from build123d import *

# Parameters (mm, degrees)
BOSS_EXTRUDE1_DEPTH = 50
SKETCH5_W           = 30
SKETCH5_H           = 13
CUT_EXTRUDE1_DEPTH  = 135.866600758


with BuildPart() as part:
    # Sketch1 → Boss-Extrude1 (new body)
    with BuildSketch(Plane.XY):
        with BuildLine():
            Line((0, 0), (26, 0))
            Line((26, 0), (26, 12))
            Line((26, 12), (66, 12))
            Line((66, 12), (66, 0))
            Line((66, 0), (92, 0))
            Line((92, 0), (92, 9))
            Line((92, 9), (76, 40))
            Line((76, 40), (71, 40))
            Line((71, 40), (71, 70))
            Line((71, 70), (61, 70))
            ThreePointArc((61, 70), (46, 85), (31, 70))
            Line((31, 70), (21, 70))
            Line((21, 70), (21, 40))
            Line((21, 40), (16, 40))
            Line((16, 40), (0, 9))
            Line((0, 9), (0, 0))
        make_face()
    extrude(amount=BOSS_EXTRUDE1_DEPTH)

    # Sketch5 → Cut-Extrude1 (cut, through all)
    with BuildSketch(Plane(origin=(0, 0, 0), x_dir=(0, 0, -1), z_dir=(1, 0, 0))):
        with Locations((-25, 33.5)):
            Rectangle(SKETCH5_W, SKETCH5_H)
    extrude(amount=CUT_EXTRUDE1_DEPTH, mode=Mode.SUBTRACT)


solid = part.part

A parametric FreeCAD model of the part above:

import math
import FreeCAD as App
import Part
import Sketcher
Q = App.Units.Quantity

doc = App.newDocument("Part")
body = doc.addObject("PartDesign::Body", "Body")

# Sketch on XY plane
sketch1 = doc.addObject("Sketcher::SketchObject", "Sketch")
body.addObject(sketch1)
sketch1.AttachmentSupport = (doc.XY_Plane, [""])
sketch1.MapMode = "FlatFace"
sketch1.addGeometry([
    Part.LineSegment(App.Vector(0, 0, 0), App.Vector(26, 0, 0)),  # 0
    Part.LineSegment(App.Vector(26, 0, 0), App.Vector(26, 12, 0)),  # 1
    Part.LineSegment(App.Vector(26, 12, 0), App.Vector(66, 12, 0)),  # 2
    Part.LineSegment(App.Vector(66, 12, 0), App.Vector(66, 0, 0)),  # 3
    Part.LineSegment(App.Vector(66, 0, 0), App.Vector(92, 0, 0)),  # 4
    Part.LineSegment(App.Vector(92, 0, 0), App.Vector(92, 9, 0)),  # 5
    Part.LineSegment(App.Vector(92, 9, 0), App.Vector(76, 40, 0)),  # 6
    Part.LineSegment(App.Vector(76, 40, 0), App.Vector(71, 40, 0)),  # 7
    Part.LineSegment(App.Vector(71, 40, 0), App.Vector(71, 70, 0)),  # 8
    Part.LineSegment(App.Vector(71, 70, 0), App.Vector(61, 70, 0)),  # 9
    Part.ArcOfCircle(Part.Circle(App.Vector(46, 70, 0), App.Vector(0, 0, 1), 15), math.radians(0), math.radians(180)),  # 10
    Part.LineSegment(App.Vector(31, 70, 0), App.Vector(21, 70, 0)),  # 11
    Part.LineSegment(App.Vector(21, 70, 0), App.Vector(21, 40, 0)),  # 12
    Part.LineSegment(App.Vector(21, 40, 0), App.Vector(16, 40, 0)),  # 13
    Part.LineSegment(App.Vector(16, 40, 0), App.Vector(0, 9, 0)),  # 14
    Part.LineSegment(App.Vector(0, 9, 0), App.Vector(0, 0, 0)),  # 15
], False)
sketch1.addConstraint([
    Sketcher.Constraint("Coincident", 0, 2, 1, 1),
    Sketcher.Constraint("Coincident", 1, 2, 2, 1),
    Sketcher.Constraint("Coincident", 2, 2, 3, 1),
    Sketcher.Constraint("Coincident", 3, 2, 4, 1),
    Sketcher.Constraint("Coincident", 4, 2, 5, 1),
    Sketcher.Constraint("Coincident", 5, 2, 6, 1),
    Sketcher.Constraint("Coincident", 6, 2, 7, 1),
    Sketcher.Constraint("Coincident", 7, 2, 8, 1),
    Sketcher.Constraint("Coincident", 8, 2, 9, 1),
    Sketcher.Constraint("Coincident", 9, 2, 10, 1),
    Sketcher.Constraint("Coincident", 10, 2, 11, 1),
    Sketcher.Constraint("Coincident", 11, 2, 12, 1),
    Sketcher.Constraint("Coincident", 12, 2, 13, 1),
    Sketcher.Constraint("Coincident", 13, 2, 14, 1),
    Sketcher.Constraint("Coincident", 14, 2, 15, 1),
    Sketcher.Constraint("Coincident", 15, 2, 0, 1),
    Sketcher.Constraint("Horizontal", 0),
    Sketcher.Constraint("Vertical", 1),
    Sketcher.Constraint("Horizontal", 2),
    Sketcher.Constraint("Vertical", 3),
    Sketcher.Constraint("Horizontal", 4),
    Sketcher.Constraint("Vertical", 5),
    Sketcher.Constraint("Horizontal", 7),
    Sketcher.Constraint("Vertical", 8),
    Sketcher.Constraint("Horizontal", 9),
    Sketcher.Constraint("Horizontal", 11),
    Sketcher.Constraint("Vertical", 12),
    Sketcher.Constraint("Horizontal", 13),
    Sketcher.Constraint("Vertical", 15),
    Sketcher.Constraint("Coincident", 15, 2, -1, 1),
    Sketcher.Constraint("PointOnObject", 3, 2, -1),
    Sketcher.Constraint("Horizontal", 10, 3, 8, 2),
    Sketcher.Constraint("Horizontal", 9, 2, 10, 2),
    Sketcher.Constraint("Horizontal", 7, 2, 12, 2),
    Sketcher.Constraint("Horizontal", 5, 2, 14, 2),
    Sketcher.Constraint("Equal", 0, 4),
    Sketcher.Constraint("Equal", 9, 11),
    Sketcher.Constraint("Equal", 7, 13),
    Sketcher.Constraint("Equal", 6, 14),
    Sketcher.Constraint("Radius", 10, Q("15 mm")),
    Sketcher.Constraint("DistanceX", 0, 1, 0, 2, Q("26 mm")),
    Sketcher.Constraint("DistanceX", 2, 1, 2, 2, Q("40 mm")),
    Sketcher.Constraint("DistanceX", 7, 2, 7, 1, Q("5 mm")),
    Sketcher.Constraint("DistanceX", 9, 2, 9, 1, Q("10 mm")),
    Sketcher.Constraint("DistanceY", 1, 1, 1, 2, Q("12 mm")),
    Sketcher.Constraint("DistanceY", 5, 1, 5, 2, Q("9 mm")),
    Sketcher.Constraint("DistanceY", 8, 1, 8, 2, Q("30 mm")),
    Sketcher.Constraint("DistanceY", -1, 1, 10, 3, Q("70 mm")),
])
pad1 = doc.addObject("PartDesign::Pad", "Pad")
body.addObject(pad1)
pad1.Profile = sketch1
pad1.Length = 50

# Sketch on YZ plane
sketch2 = doc.addObject("Sketcher::SketchObject", "Sketch001")
body.addObject(sketch2)
sketch2.AttachmentSupport = (doc.YZ_Plane, [""])
sketch2.MapMode = "FlatFace"
sketch2.addGeometry([
    Part.LineSegment(App.Vector(40, 40, 0), App.Vector(27, 40, 0)),
    Part.LineSegment(App.Vector(27, 40, 0), App.Vector(27, 10, 0)),
    Part.LineSegment(App.Vector(27, 10, 0), App.Vector(40, 10, 0)),
    Part.LineSegment(App.Vector(40, 10, 0), App.Vector(40, 40, 0)),
], False)
sketch2.addConstraint([
    Sketcher.Constraint("Coincident", 0, 2, 1, 1),
    Sketcher.Constraint("Coincident", 1, 2, 2, 1),
    Sketcher.Constraint("Coincident", 2, 2, 3, 1),
    Sketcher.Constraint("Coincident", 3, 2, 0, 1),
    Sketcher.Constraint("Horizontal", 0),
    Sketcher.Constraint("Vertical", 1),
    Sketcher.Constraint("Horizontal", 2),
    Sketcher.Constraint("Vertical", 3),
    Sketcher.Constraint("DistanceX", 0, 2, 0, 1, Q("13 mm")),
    Sketcher.Constraint("DistanceY", 1, 2, 1, 1, Q("30 mm")),
    Sketcher.Constraint("DistanceX", -1, 1, 0, 2, Q("27 mm")),
    Sketcher.Constraint("DistanceY", -1, 1, 0, 2, Q("40 mm")),
])
pocket1 = doc.addObject("PartDesign::Pocket", "Pocket")
body.addObject(pocket1)
pocket1.Profile = sketch2
pocket1.Type = "ThroughAll"
pocket1.Reversed = True

doc.recompute()
